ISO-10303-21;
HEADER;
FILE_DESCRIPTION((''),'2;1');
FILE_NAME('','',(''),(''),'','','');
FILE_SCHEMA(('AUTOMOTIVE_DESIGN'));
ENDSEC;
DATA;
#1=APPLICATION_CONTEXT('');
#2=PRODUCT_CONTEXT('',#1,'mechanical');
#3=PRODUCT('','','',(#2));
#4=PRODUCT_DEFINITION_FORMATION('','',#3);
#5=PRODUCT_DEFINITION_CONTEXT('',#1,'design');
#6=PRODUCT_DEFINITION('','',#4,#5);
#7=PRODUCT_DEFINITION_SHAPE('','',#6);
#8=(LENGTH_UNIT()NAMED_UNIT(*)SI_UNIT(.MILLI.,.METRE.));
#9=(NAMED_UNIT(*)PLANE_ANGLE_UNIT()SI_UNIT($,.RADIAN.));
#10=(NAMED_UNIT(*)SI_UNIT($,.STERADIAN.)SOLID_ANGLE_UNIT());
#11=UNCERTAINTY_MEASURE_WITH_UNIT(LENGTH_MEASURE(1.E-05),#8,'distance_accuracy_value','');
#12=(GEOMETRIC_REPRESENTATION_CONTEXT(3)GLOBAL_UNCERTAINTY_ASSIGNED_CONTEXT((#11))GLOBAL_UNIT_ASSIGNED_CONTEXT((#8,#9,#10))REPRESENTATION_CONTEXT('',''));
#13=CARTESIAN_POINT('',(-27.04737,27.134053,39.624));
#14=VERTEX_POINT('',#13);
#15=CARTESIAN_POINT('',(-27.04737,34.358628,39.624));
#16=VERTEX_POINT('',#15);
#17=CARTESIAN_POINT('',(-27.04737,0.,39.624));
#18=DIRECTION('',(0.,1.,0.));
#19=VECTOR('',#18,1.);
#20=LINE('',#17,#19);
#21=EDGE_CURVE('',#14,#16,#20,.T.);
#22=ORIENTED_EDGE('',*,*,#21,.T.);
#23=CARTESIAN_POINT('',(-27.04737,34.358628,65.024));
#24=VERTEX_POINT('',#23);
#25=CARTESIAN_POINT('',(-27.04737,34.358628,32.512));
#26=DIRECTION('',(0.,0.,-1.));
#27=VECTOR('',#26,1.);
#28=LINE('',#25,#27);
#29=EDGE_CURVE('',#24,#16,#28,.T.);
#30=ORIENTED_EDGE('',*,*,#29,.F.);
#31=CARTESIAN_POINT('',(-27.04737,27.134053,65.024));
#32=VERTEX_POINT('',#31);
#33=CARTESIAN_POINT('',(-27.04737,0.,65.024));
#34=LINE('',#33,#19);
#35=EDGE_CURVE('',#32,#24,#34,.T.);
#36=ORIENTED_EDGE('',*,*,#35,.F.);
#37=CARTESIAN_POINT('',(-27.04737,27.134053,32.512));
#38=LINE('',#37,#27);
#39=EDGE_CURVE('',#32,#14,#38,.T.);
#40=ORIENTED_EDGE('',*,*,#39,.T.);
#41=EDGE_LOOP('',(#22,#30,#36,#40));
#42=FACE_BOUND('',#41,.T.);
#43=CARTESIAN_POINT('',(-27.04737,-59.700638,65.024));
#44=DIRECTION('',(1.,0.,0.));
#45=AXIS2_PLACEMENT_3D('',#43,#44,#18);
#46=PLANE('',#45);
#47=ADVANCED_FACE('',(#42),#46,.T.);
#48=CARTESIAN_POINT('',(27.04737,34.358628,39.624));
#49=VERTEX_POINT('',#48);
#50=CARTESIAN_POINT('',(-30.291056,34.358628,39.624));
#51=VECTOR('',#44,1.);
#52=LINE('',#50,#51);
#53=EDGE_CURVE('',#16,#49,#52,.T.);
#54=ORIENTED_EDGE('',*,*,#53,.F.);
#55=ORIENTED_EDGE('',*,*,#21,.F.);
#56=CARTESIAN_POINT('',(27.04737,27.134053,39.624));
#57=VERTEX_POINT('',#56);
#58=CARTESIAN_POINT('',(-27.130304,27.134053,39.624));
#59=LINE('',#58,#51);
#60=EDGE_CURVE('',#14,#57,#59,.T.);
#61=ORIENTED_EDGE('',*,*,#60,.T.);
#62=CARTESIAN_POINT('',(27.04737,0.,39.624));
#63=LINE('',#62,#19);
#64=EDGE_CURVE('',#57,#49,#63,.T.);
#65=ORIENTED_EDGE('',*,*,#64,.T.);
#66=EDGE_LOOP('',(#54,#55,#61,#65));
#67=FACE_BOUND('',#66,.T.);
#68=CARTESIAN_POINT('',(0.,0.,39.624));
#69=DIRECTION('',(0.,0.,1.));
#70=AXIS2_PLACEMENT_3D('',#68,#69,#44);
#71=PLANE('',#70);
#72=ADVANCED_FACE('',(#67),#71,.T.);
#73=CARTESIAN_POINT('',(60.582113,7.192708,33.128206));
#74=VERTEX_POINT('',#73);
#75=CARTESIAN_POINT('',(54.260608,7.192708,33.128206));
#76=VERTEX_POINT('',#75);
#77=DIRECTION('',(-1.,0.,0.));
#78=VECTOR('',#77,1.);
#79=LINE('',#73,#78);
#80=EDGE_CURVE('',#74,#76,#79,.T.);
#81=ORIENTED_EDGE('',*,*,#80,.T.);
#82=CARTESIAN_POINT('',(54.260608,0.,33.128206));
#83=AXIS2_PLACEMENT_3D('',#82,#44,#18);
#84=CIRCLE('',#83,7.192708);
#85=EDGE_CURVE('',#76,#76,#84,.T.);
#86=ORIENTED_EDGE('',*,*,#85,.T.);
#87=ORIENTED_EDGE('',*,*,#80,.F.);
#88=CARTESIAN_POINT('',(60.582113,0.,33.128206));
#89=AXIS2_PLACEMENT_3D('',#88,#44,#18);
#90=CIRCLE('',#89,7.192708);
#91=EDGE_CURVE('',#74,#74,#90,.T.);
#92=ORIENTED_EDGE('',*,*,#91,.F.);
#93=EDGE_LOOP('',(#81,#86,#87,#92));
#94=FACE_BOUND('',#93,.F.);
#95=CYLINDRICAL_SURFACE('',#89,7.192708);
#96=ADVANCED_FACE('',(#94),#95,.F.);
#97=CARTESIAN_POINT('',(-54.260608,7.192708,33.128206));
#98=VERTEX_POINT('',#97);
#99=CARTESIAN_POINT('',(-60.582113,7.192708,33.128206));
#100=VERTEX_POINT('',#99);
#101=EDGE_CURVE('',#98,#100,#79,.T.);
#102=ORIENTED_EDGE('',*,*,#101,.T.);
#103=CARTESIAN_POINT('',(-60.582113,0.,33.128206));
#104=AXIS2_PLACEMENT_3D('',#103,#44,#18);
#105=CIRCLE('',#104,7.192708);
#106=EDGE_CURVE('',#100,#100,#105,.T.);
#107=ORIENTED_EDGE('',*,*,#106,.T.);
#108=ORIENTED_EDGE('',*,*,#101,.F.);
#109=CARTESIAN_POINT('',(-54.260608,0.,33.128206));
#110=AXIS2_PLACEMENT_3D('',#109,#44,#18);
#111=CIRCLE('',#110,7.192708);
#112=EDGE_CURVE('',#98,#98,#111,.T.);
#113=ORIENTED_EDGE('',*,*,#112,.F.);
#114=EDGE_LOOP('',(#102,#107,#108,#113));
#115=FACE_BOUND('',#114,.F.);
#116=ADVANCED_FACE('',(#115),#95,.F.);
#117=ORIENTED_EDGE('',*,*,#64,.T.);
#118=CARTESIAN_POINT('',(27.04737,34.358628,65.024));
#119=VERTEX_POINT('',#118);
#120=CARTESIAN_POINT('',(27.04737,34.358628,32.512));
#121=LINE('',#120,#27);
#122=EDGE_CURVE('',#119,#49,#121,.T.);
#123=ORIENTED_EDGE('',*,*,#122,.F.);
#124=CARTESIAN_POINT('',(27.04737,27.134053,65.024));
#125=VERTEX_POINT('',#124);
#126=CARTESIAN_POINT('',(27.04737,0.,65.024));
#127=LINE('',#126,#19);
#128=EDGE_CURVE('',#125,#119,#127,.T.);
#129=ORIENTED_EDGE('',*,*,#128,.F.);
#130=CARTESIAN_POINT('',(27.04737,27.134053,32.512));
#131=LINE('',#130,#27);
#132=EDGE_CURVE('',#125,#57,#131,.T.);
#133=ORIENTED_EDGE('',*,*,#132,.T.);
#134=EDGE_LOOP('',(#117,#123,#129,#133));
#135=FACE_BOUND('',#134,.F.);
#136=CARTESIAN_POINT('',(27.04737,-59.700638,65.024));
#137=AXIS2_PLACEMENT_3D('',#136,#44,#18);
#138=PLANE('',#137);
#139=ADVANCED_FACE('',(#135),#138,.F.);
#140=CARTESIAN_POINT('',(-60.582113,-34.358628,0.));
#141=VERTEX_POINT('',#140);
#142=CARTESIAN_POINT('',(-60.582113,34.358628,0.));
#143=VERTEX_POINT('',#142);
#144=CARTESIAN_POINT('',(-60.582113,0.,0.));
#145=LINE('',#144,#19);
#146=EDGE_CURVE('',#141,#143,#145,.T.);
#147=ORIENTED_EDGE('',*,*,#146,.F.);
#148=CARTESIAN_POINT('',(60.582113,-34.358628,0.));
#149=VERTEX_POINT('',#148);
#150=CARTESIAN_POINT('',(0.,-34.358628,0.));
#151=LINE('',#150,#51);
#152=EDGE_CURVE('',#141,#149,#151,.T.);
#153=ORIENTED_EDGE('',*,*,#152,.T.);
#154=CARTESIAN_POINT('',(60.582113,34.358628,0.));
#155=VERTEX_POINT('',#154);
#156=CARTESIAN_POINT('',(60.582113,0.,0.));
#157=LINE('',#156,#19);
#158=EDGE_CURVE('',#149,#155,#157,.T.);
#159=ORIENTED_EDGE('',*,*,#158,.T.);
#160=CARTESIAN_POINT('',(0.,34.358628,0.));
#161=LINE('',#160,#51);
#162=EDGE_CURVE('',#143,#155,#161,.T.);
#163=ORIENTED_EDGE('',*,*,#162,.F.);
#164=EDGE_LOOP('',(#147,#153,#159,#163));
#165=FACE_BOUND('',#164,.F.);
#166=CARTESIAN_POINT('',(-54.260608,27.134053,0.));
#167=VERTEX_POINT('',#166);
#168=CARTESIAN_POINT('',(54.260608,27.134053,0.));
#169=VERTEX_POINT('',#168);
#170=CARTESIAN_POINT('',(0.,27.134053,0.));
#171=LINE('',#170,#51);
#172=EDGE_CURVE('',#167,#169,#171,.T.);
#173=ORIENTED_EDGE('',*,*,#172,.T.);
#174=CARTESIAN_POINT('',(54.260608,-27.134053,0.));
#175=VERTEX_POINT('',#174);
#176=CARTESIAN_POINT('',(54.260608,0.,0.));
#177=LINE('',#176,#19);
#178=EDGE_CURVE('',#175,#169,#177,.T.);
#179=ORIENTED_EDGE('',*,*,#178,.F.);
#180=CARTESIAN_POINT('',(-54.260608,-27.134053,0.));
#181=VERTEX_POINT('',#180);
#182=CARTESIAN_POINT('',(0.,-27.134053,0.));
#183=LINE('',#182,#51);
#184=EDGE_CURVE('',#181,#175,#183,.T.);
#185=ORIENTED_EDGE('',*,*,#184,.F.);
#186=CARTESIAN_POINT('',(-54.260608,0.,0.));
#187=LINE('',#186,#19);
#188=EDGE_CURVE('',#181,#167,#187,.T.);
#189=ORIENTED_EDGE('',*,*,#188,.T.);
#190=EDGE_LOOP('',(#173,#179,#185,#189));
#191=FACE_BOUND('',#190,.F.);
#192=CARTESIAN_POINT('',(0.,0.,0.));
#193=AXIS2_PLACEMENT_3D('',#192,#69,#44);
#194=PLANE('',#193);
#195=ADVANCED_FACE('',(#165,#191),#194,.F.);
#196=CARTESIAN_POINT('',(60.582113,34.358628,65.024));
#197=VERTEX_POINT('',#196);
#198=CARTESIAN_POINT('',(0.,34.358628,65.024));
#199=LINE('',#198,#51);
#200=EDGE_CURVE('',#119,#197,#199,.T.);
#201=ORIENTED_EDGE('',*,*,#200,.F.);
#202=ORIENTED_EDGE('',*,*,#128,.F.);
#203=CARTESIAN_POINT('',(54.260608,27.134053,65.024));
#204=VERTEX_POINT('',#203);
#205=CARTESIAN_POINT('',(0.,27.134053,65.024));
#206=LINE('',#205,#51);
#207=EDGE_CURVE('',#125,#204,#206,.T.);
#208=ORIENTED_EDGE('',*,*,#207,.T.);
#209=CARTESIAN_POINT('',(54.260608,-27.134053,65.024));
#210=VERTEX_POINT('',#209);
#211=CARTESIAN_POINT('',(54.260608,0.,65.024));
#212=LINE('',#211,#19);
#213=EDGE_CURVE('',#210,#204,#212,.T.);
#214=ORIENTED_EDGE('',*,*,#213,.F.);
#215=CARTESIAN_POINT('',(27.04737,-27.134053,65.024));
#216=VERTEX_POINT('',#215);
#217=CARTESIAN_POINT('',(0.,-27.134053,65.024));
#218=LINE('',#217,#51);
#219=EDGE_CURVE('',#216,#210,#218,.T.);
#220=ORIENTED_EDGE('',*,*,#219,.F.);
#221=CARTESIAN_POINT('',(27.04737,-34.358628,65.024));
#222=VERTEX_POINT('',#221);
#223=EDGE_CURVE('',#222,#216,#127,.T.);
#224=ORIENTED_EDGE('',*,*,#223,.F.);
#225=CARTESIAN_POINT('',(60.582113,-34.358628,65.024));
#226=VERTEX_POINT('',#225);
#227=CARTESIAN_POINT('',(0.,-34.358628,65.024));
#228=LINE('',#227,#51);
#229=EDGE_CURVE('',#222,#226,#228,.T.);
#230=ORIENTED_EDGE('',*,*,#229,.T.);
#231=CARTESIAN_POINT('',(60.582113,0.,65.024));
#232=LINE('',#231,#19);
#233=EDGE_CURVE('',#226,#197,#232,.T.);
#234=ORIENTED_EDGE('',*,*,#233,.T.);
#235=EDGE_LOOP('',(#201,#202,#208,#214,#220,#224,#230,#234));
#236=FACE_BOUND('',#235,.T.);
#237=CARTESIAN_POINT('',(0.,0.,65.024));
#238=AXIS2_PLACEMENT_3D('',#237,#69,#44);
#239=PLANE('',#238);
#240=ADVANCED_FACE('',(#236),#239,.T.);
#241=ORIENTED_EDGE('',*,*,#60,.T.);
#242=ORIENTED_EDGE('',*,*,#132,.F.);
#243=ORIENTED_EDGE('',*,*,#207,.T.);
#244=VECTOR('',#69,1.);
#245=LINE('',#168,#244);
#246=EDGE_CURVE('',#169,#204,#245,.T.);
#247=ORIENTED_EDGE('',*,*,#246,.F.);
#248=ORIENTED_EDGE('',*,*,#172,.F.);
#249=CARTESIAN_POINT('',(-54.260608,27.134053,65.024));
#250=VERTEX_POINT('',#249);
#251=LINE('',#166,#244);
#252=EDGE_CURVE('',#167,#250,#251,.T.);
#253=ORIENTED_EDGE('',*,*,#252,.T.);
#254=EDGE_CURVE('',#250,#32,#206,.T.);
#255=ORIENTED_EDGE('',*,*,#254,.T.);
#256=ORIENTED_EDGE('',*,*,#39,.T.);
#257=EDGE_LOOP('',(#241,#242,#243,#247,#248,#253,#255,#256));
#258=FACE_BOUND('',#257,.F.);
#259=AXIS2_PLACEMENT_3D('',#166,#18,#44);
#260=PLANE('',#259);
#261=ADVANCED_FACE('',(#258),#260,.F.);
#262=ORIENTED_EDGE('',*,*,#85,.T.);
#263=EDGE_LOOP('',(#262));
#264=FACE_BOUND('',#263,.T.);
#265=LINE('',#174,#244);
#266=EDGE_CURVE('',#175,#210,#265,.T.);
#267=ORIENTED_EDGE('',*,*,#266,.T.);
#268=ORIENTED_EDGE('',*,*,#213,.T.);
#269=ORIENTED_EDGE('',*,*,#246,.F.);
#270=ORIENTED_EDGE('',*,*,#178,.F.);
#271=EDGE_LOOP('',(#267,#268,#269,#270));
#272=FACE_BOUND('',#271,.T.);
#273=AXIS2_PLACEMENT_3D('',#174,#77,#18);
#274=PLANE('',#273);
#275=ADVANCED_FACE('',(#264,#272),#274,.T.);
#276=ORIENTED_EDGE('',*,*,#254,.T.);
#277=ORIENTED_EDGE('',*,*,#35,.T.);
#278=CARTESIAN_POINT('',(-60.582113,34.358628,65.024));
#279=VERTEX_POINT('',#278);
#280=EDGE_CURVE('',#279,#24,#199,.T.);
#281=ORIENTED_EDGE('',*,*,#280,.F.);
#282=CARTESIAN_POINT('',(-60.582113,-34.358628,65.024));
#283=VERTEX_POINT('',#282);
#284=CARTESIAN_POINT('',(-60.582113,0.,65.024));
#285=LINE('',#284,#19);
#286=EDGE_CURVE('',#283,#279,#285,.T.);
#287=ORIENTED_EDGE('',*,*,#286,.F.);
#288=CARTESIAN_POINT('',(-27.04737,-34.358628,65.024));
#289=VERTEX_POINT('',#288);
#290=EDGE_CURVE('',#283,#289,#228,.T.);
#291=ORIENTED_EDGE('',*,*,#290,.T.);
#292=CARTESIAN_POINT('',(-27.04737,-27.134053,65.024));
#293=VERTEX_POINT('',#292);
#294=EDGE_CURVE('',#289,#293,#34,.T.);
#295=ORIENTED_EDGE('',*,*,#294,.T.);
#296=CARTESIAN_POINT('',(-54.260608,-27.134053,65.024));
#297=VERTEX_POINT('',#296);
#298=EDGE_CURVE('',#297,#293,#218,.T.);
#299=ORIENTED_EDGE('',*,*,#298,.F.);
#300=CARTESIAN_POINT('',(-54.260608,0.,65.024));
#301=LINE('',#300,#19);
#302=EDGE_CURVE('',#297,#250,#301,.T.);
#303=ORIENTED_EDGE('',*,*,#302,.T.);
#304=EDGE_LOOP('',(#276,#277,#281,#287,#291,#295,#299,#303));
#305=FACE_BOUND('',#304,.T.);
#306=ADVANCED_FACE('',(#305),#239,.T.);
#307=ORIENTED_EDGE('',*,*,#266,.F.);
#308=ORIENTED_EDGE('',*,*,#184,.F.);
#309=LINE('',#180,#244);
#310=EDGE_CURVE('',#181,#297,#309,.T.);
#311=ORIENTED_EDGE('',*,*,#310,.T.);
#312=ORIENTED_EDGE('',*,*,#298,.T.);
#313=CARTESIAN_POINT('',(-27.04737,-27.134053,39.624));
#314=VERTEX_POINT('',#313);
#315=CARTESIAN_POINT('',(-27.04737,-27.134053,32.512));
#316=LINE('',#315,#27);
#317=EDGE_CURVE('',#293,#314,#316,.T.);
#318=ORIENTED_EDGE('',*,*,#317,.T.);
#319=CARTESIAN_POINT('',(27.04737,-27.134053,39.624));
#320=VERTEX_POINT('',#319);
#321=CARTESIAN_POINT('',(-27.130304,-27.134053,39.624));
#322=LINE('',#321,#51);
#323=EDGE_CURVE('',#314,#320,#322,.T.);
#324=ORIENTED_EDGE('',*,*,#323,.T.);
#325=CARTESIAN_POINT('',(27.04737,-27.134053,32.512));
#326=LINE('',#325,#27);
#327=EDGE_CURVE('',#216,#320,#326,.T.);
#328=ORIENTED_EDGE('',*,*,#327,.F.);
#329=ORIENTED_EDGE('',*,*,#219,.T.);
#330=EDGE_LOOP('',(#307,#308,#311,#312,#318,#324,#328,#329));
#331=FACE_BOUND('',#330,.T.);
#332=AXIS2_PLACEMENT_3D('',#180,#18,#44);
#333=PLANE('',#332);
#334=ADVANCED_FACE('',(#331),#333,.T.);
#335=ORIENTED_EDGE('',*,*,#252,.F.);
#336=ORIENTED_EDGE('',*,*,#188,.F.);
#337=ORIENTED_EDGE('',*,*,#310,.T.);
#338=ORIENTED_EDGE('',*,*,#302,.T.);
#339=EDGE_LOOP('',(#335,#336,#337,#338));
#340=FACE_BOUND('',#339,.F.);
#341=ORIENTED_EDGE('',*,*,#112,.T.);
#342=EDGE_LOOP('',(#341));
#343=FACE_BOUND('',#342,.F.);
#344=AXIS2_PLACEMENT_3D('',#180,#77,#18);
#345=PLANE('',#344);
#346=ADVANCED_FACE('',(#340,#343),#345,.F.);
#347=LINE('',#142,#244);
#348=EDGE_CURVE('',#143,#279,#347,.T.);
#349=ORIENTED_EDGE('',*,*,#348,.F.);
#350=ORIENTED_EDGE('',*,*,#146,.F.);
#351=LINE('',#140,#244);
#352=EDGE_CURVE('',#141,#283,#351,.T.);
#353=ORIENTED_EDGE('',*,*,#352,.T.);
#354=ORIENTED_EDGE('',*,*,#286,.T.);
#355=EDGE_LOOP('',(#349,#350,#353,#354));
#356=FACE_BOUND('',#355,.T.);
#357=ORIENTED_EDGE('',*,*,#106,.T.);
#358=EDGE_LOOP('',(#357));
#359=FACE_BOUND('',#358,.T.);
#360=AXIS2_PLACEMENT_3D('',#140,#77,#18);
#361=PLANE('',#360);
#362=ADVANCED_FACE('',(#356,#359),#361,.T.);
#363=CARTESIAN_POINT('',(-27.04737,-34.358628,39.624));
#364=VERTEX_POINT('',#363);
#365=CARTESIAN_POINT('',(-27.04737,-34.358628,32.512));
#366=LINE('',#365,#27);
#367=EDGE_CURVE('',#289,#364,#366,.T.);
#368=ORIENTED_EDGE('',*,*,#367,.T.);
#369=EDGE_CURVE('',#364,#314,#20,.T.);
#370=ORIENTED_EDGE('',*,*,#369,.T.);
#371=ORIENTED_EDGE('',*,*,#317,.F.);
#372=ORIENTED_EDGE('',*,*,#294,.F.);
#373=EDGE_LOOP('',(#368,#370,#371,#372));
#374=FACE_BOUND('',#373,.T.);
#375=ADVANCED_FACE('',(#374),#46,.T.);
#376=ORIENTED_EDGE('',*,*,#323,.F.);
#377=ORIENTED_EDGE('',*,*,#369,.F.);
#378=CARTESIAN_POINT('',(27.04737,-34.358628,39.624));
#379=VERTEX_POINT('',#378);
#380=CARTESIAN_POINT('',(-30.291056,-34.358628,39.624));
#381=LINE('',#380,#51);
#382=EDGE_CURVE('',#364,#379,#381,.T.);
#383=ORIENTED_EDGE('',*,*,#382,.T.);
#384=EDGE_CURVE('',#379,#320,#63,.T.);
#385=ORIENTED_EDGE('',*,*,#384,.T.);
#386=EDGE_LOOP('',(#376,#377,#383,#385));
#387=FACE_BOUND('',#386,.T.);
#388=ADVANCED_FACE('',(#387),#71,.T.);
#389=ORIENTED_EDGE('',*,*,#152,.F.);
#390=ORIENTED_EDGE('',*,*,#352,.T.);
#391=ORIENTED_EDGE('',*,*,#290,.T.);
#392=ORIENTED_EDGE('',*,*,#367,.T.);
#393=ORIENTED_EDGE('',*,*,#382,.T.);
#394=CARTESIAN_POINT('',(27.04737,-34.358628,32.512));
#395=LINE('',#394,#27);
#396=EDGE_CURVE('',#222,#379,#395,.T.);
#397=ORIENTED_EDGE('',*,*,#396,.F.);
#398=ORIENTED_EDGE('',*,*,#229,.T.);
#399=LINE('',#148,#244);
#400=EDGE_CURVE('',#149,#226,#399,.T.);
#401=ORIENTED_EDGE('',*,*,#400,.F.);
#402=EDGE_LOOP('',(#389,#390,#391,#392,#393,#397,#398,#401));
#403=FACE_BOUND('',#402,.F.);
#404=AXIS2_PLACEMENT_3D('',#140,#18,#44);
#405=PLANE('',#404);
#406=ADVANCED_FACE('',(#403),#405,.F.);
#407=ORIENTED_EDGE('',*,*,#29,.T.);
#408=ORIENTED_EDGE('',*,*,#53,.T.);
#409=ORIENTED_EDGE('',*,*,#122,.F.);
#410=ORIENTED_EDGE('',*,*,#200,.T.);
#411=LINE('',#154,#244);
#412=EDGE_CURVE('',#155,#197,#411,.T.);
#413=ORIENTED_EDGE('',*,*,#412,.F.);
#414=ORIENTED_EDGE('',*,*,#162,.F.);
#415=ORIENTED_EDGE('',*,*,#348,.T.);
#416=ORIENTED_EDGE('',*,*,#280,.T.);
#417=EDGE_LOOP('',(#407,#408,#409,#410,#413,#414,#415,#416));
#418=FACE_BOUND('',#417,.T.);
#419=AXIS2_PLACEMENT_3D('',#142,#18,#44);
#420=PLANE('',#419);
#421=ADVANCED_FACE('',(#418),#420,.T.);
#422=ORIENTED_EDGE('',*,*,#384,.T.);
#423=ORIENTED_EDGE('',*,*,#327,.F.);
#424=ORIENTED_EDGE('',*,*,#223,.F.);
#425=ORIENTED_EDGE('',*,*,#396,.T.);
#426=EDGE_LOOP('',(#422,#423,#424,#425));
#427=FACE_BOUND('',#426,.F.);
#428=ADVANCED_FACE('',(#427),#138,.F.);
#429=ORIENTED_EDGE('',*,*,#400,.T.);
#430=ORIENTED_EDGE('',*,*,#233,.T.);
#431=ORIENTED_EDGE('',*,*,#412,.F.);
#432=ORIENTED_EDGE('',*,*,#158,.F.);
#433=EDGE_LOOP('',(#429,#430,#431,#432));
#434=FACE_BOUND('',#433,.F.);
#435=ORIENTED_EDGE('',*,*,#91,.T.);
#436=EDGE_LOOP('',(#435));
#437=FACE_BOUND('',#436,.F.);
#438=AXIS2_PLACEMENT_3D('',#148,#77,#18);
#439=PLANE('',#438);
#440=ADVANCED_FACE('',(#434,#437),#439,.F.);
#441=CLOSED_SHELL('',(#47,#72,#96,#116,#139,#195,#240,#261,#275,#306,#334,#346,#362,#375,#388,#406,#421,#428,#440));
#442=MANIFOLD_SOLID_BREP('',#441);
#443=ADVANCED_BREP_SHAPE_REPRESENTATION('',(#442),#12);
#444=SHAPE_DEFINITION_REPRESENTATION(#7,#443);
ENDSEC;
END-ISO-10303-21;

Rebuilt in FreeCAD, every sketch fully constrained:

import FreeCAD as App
import Part
import Sketcher
Q = App.Units.Quantity


def add_polygon(sketch, points):
    """Adds a closed chain of lines whose ends are joined by coincident constraints."""
    first, n = sketch.GeometryCount, len(points)
    for a, b in zip(points, points[1:] + points[:1]):
        sketch.addGeometry(Part.LineSegment(App.Vector(*a, 0), App.Vector(*b, 0)), False)
    for i in range(n):
        sketch.addConstraint(Sketcher.Constraint("Coincident", first + i, 2, first + (i + 1) % n, 1))

doc = App.newDocument("Part")
body = doc.addObject("PartDesign::Body", "Body")

sketch1 = body.newObject("Sketcher::SketchObject", "Sketch")
sketch1.AttachmentSupport = (doc.getObject("XY_Plane"), [""])
sketch1.MapMode = "FlatFace"
add_polygon(sketch1, [(-60.582113, 34.358628), (-60.582113, -34.358628), (60.582113, -34.358628), (60.582113, 34.358628)])
add_polygon(sketch1, [(54.260608, -27.134053), (-54.260608, -27.134053), (-54.260608, 27.134053), (54.260608, 27.134053)])
sketch1.addConstraint(Sketcher.Constraint("Vertical", 0))
sketch1.addConstraint(Sketcher.Constraint("Horizontal", 1))
sketch1.addConstraint(Sketcher.Constraint("Vertical", 2))
sketch1.addConstraint(Sketcher.Constraint("Horizontal", 3))
sketch1.addConstraint(Sketcher.Constraint("Horizontal", 4))
sketch1.addConstraint(Sketcher.Constraint("Vertical", 5))
sketch1.addConstraint(Sketcher.Constraint("Horizontal", 6))
sketch1.addConstraint(Sketcher.Constraint("Vertical", 7))
sketch1.addConstraint(Sketcher.Constraint("Symmetric", 0, 2, 2, 2, -1, 1))
sketch1.addConstraint(Sketcher.Constraint("Symmetric", 4, 2, 6, 2, -1, 1))
sketch1.addConstraint(Sketcher.Constraint("DistanceX", 1, 1, 1, 2, Q("121.164226 mm")))
sketch1.addConstraint(Sketcher.Constraint("DistanceX", 4, 2, 4, 1, Q("108.521216 mm")))
sketch1.addConstraint(Sketcher.Constraint("DistanceY", 0, 2, 0, 1, Q("68.717256 mm")))
sketch1.addConstraint(Sketcher.Constraint("DistanceY", 5, 1, 5, 2, Q("54.268106 mm")))
pad1 = body.newObject("PartDesign::Pad", "Pad")
pad1.Profile = sketch1
pad1.Length = Q("2.56 in")

sketch2 = body.newObject("Sketcher::SketchObject", "Sketch001")
sketch2.AttachmentSupport = (doc.getObject("XY_Plane"), [""])
sketch2.MapMode = "FlatFace"
sketch2.AttachmentOffset = App.Placement(App.Vector(0, 0, 2.56 * 25.4), App.Rotation())
add_polygon(sketch2, [(-27.04737, 59.700638), (-27.04737, -59.700638), (27.04737, -59.700638), (27.04737, 59.700638)])
sketch2.addConstraint(Sketcher.Constraint("Vertical", 0))
sketch2.addConstraint(Sketcher.Constraint("Horizontal", 1))
sketch2.addConstraint(Sketcher.Constraint("Vertical", 2))
sketch2.addConstraint(Sketcher.Constraint("Horizontal", 3))
sketch2.addConstraint(Sketcher.Constraint("Symmetric", 0, 2, 2, 2, -1, 1))
sketch2.addConstraint(Sketcher.Constraint("DistanceX", 1, 1, 1, 2, Q("54.09474 mm")))
sketch2.addConstraint(Sketcher.Constraint("DistanceY", 0, 2, 0, 1, Q("119.401276 mm")))
pocket1 = body.newObject("PartDesign::Pocket", "Pocket")
pocket1.Profile = sketch2
pocket1.Length = Q("1 in")

sketch3 = body.newObject("Sketcher::SketchObject", "Sketch002")
sketch3.AttachmentSupport = (doc.getObject("YZ_Plane"), [""])
sketch3.MapMode = "FlatFace"
sketch3.AttachmentOffset = App.Placement(App.Vector(0, 0, 60.582113), App.Rotation())
sketch3.addGeometry(Part.Circle(App.Vector(0, 33.128206, 0), App.Vector(0, 0, 1), 7.192708), False)
sketch3.addConstraint(Sketcher.Constraint("PointOnObject", 0, 3, -2))
sketch3.addConstraint(Sketcher.Constraint("Diameter", 0, Q("14.385416 mm")))
sketch3.addConstraint(Sketcher.Constraint("DistanceY", -1, 1, 0, 3, Q("33.128206 mm")))
pocket2 = body.newObject("PartDesign::Pocket", "Pocket001")
pocket2.Profile = sketch3
pocket2.Type = "ThroughAll"

doc.recompute()
